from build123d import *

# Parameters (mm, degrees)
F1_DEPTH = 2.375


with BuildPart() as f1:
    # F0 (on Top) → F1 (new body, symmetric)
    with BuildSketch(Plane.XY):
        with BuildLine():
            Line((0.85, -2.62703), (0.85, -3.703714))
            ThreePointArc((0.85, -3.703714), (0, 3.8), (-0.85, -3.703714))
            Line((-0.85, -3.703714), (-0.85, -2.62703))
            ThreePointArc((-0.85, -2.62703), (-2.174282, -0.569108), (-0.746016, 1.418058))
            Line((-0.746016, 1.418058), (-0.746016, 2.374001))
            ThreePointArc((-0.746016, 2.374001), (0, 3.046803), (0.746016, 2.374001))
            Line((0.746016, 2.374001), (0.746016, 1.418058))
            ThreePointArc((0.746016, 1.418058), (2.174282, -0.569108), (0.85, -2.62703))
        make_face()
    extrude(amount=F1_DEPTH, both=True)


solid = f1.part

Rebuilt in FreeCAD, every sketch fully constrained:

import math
import FreeCAD as App
import Part
import Sketcher
from FreeCAD import Vector

doc = App.newDocument("Part")
body = doc.addObject("PartDesign::Body", "Body")

sketch1 = body.newObject("Sketcher::SketchObject", "Sketch")
sketch1.AttachmentSupport = (doc.getObject("XY_Plane"), [""])
sketch1.MapMode = "FlatFace"
sketch1.addGeometry([
    Part.LineSegment(Vector(0.8, -2.6, 0), Vector(0.8, -3.7, 0)),
    Part.ArcOfCircle(Part.Circle(Vector(0, 0, 0), Vector(0, 0, 1), 3.8), math.radians(-77), math.radians(257)),
    Part.LineSegment(Vector(-0.8, -3.7, 0), Vector(-0.8, -2.6, 0)),
    Part.ArcOfCircle(Part.Circle(Vector(0, -0.6, 0), Vector(0, 0, 1), 2.2), math.radians(110), math.radians(247)),
    Part.LineSegment(Vector(-0.7, 1.4, 0), Vector(-0.7, 2.4, 0)),
    Part.ArcOfCircle(Part.Circle(Vector(0, 2.3, 0), Vector(0, 0, 1), 0.7), math.radians(6), math.radians(174)),
    Part.LineSegment(Vector(0.7, 2.4, 0), Vector(0.7, 1.4, 0)),
    Part.ArcOfCircle(Part.Circle(Vector(0, -0.6, 0), Vector(0, 0, 1), 2.2), math.radians(-67), math.radians(70)),
], False)
sketch1.addConstraint([
    Sketcher.Constraint("Coincident", 0, 2, 1, 1),
    Sketcher.Constraint("Coincident", 1, 2, 2, 1),
    Sketcher.Constraint("Coincident", 2, 2, 3, 2),
    Sketcher.Constraint("Coincident", 3, 1, 4, 1),
    Sketcher.Constraint("Coincident", 4, 2, 5, 2),
    Sketcher.Constraint("Coincident", 5, 1, 6, 1),
    Sketcher.Constraint("Coincident", 6, 2, 7, 2),
    Sketcher.Constraint("Coincident", 7, 1, 0, 1),
    Sketcher.Constraint("Vertical", 0),
    Sketcher.Constraint("Vertical", 2),
    Sketcher.Constraint("Vertical", 4),
    Sketcher.Constraint("Vertical", 6),
    Sketcher.Constraint("Coincident", 1, 3, -1, 1),
    Sketcher.Constraint("Coincident", 7, 3, 3, 3),
    Sketcher.Constraint("Equal", 3, 7),
    Sketcher.Constraint("Symmetric", 4, 2, 5, 1, -2),
    Sketcher.Constraint("Symmetric", 2, 2, 7, 1, -2),
    Sketcher.Constraint("Radius", 1, 3.8),
    Sketcher.Constraint("Radius", 5, 0.75),
    Sketcher.Constraint("Radius", 3, 2.175),
    Sketcher.Constraint("DistanceX", 1, 2, 0, 2, 1.7),
    Sketcher.Constraint("DistanceY", 3, 3, -1, 1, 0.625),
    Sketcher.Constraint("DistanceY", -1, 1, 4, 2, 2.374001),
    Sketcher.Constraint("DistanceY", 4, 1, 4, 2, 0.955943),
])
pad1 = body.newObject("PartDesign::Pad", "Pad")
pad1.Profile = sketch1
pad1.Length = 4.75
pad1.Midplane = True

doc.recompute()
